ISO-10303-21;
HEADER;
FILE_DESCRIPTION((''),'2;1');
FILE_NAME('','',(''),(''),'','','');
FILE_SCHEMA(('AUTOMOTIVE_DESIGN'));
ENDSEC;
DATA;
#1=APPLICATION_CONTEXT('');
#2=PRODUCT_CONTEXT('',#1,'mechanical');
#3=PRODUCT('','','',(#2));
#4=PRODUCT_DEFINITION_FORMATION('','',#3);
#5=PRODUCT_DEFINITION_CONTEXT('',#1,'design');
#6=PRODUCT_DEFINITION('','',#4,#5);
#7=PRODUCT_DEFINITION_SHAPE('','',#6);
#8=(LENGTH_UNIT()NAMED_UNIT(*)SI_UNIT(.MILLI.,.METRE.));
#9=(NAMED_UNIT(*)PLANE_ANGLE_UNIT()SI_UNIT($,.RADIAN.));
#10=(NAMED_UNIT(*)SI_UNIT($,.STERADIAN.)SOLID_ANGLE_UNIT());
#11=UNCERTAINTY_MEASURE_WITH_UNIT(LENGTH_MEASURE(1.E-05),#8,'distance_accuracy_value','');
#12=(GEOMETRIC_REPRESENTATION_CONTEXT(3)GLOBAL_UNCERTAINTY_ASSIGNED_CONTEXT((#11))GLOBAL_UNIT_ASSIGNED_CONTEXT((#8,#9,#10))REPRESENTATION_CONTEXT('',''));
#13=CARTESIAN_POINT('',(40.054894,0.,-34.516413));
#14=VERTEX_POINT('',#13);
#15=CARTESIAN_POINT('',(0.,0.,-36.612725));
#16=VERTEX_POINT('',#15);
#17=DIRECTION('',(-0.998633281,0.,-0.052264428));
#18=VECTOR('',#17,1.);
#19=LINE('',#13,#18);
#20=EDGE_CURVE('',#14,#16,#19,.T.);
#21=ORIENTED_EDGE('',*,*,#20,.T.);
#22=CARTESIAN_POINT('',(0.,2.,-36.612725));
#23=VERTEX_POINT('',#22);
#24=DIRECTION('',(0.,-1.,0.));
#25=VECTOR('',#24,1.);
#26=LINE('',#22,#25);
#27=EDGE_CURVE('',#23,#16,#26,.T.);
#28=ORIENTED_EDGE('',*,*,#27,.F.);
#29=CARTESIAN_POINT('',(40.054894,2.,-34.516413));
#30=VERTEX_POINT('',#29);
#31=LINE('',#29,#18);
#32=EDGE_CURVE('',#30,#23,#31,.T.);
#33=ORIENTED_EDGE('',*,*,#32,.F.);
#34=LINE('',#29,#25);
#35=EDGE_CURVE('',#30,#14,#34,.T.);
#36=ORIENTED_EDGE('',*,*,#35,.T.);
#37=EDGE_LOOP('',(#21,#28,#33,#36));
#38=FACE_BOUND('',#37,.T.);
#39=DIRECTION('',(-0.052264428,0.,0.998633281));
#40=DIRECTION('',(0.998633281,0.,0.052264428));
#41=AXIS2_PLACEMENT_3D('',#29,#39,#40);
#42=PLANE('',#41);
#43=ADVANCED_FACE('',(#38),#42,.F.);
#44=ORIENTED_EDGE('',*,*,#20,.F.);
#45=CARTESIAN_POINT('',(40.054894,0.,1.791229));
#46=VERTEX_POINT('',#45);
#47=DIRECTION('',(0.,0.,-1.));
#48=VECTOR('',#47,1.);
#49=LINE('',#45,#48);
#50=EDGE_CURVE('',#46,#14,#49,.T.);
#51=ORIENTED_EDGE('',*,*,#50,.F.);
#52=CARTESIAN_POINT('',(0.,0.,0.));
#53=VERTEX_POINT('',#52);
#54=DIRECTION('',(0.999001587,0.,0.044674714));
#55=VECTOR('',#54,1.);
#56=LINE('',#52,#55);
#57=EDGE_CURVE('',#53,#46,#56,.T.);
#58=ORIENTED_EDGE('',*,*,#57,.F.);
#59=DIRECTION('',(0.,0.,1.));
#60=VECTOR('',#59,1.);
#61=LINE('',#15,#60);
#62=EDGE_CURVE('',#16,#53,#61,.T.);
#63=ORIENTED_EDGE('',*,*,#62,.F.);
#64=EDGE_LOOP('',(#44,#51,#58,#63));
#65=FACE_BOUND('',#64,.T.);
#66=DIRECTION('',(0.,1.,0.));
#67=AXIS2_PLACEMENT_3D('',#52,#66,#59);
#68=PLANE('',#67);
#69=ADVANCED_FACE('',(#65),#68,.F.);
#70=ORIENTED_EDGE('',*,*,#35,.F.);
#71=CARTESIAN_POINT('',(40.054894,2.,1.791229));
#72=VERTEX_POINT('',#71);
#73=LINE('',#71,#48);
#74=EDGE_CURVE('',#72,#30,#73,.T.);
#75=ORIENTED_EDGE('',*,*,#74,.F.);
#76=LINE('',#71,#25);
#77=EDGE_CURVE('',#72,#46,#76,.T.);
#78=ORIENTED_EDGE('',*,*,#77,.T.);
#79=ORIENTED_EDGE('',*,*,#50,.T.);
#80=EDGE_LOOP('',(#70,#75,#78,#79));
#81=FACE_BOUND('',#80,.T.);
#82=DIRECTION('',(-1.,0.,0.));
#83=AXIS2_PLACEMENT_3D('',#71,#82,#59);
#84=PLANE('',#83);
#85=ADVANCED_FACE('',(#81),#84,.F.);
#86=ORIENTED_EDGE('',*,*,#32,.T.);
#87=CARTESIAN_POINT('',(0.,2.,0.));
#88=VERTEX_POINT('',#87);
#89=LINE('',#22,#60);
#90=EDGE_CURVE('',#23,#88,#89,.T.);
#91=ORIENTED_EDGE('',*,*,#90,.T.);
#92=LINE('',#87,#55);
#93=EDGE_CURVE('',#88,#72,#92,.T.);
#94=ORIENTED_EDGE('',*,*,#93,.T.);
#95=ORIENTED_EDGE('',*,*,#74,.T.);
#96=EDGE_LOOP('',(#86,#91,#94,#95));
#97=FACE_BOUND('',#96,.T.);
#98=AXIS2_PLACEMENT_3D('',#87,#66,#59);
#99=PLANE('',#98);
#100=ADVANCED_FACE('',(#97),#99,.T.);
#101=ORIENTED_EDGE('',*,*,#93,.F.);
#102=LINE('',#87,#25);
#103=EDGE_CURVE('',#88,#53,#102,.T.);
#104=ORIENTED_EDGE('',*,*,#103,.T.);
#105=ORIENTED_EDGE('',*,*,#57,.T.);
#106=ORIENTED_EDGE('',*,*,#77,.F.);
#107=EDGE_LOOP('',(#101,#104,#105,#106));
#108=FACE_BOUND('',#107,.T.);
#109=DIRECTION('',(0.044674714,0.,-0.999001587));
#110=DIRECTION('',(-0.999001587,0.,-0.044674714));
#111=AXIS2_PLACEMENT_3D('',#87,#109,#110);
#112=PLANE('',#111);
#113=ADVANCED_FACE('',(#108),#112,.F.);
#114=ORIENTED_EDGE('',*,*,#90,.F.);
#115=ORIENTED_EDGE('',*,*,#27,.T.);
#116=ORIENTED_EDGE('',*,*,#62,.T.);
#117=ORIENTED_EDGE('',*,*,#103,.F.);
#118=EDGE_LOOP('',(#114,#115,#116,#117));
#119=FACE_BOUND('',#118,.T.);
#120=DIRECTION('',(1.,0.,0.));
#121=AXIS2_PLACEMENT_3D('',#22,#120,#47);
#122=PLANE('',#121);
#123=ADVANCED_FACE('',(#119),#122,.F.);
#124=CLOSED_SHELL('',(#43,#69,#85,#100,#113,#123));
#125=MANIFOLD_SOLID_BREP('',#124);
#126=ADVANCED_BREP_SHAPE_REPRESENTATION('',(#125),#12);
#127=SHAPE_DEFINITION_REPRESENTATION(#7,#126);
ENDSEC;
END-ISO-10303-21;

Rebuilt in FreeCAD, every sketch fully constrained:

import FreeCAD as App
import Part
import Sketcher

V = App.Vector
Q = App.Units.Quantity

doc = App.newDocument("Part")
params = doc.addObject("Spreadsheet::Sheet", "Params")
for row, (alias, value) in enumerate([
    ("pad1_length", "2 mm"),
], start=1):
    params.set(f"A{row}", alias)
    params.set(f"B{row}", "=" + value)
    params.setAlias(f"B{row}", alias)

body = doc.addObject("PartDesign::Body", "Body")

# Sketch on XZ plane
sketch1 = body.newObject("Sketcher::SketchObject", "Sketch")
sketch1.AttachmentSupport = (doc.getObject("XZ_Plane"), [""])
sketch1.MapMode = "FlatFace"
sketch1.addGeometry([
    Part.LineSegment(V(40, 2, 0), V(40, -35, 0)),
    Part.LineSegment(V(40, -35, 0), V(0, -37, 0)),
    Part.LineSegment(V(0, -37, 0), V(0, 0, 0)),
    Part.LineSegment(V(0, 0, 0), V(40, 2, 0)),
], False)
sketch1.addConstraint([
    Sketcher.Constraint("Coincident", 0, 2, 1, 1),
    Sketcher.Constraint("Coincident", 1, 2, 2, 1),
    Sketcher.Constraint("Coincident", 2, 2, 3, 1),
    Sketcher.Constraint("Coincident", 3, 2, 0, 1),
    Sketcher.Constraint("Vertical", 0),
    Sketcher.Constraint("Vertical", 2),
    Sketcher.Constraint("Coincident", 2, 2, -1, 1),
    Sketcher.Constraint("DistanceY", 0, 2, 0, 1, Q("36.307643 mm")),
    Sketcher.Constraint("DistanceY", 2, 1, 2, 2, Q("36.612725 mm")),
    Sketcher.Constraint("DistanceY", -1, 1, 3, 2, Q("1.791229 mm")),
    Sketcher.Constraint("Distance", 1, Q("40.109713 mm")),
])
pad1 = body.newObject("PartDesign::Pad", "Pad")
pad1.Profile = sketch1
pad1.setExpression("Length", "Params.pad1_length")
pad1.Reversed = True

doc.recompute()
